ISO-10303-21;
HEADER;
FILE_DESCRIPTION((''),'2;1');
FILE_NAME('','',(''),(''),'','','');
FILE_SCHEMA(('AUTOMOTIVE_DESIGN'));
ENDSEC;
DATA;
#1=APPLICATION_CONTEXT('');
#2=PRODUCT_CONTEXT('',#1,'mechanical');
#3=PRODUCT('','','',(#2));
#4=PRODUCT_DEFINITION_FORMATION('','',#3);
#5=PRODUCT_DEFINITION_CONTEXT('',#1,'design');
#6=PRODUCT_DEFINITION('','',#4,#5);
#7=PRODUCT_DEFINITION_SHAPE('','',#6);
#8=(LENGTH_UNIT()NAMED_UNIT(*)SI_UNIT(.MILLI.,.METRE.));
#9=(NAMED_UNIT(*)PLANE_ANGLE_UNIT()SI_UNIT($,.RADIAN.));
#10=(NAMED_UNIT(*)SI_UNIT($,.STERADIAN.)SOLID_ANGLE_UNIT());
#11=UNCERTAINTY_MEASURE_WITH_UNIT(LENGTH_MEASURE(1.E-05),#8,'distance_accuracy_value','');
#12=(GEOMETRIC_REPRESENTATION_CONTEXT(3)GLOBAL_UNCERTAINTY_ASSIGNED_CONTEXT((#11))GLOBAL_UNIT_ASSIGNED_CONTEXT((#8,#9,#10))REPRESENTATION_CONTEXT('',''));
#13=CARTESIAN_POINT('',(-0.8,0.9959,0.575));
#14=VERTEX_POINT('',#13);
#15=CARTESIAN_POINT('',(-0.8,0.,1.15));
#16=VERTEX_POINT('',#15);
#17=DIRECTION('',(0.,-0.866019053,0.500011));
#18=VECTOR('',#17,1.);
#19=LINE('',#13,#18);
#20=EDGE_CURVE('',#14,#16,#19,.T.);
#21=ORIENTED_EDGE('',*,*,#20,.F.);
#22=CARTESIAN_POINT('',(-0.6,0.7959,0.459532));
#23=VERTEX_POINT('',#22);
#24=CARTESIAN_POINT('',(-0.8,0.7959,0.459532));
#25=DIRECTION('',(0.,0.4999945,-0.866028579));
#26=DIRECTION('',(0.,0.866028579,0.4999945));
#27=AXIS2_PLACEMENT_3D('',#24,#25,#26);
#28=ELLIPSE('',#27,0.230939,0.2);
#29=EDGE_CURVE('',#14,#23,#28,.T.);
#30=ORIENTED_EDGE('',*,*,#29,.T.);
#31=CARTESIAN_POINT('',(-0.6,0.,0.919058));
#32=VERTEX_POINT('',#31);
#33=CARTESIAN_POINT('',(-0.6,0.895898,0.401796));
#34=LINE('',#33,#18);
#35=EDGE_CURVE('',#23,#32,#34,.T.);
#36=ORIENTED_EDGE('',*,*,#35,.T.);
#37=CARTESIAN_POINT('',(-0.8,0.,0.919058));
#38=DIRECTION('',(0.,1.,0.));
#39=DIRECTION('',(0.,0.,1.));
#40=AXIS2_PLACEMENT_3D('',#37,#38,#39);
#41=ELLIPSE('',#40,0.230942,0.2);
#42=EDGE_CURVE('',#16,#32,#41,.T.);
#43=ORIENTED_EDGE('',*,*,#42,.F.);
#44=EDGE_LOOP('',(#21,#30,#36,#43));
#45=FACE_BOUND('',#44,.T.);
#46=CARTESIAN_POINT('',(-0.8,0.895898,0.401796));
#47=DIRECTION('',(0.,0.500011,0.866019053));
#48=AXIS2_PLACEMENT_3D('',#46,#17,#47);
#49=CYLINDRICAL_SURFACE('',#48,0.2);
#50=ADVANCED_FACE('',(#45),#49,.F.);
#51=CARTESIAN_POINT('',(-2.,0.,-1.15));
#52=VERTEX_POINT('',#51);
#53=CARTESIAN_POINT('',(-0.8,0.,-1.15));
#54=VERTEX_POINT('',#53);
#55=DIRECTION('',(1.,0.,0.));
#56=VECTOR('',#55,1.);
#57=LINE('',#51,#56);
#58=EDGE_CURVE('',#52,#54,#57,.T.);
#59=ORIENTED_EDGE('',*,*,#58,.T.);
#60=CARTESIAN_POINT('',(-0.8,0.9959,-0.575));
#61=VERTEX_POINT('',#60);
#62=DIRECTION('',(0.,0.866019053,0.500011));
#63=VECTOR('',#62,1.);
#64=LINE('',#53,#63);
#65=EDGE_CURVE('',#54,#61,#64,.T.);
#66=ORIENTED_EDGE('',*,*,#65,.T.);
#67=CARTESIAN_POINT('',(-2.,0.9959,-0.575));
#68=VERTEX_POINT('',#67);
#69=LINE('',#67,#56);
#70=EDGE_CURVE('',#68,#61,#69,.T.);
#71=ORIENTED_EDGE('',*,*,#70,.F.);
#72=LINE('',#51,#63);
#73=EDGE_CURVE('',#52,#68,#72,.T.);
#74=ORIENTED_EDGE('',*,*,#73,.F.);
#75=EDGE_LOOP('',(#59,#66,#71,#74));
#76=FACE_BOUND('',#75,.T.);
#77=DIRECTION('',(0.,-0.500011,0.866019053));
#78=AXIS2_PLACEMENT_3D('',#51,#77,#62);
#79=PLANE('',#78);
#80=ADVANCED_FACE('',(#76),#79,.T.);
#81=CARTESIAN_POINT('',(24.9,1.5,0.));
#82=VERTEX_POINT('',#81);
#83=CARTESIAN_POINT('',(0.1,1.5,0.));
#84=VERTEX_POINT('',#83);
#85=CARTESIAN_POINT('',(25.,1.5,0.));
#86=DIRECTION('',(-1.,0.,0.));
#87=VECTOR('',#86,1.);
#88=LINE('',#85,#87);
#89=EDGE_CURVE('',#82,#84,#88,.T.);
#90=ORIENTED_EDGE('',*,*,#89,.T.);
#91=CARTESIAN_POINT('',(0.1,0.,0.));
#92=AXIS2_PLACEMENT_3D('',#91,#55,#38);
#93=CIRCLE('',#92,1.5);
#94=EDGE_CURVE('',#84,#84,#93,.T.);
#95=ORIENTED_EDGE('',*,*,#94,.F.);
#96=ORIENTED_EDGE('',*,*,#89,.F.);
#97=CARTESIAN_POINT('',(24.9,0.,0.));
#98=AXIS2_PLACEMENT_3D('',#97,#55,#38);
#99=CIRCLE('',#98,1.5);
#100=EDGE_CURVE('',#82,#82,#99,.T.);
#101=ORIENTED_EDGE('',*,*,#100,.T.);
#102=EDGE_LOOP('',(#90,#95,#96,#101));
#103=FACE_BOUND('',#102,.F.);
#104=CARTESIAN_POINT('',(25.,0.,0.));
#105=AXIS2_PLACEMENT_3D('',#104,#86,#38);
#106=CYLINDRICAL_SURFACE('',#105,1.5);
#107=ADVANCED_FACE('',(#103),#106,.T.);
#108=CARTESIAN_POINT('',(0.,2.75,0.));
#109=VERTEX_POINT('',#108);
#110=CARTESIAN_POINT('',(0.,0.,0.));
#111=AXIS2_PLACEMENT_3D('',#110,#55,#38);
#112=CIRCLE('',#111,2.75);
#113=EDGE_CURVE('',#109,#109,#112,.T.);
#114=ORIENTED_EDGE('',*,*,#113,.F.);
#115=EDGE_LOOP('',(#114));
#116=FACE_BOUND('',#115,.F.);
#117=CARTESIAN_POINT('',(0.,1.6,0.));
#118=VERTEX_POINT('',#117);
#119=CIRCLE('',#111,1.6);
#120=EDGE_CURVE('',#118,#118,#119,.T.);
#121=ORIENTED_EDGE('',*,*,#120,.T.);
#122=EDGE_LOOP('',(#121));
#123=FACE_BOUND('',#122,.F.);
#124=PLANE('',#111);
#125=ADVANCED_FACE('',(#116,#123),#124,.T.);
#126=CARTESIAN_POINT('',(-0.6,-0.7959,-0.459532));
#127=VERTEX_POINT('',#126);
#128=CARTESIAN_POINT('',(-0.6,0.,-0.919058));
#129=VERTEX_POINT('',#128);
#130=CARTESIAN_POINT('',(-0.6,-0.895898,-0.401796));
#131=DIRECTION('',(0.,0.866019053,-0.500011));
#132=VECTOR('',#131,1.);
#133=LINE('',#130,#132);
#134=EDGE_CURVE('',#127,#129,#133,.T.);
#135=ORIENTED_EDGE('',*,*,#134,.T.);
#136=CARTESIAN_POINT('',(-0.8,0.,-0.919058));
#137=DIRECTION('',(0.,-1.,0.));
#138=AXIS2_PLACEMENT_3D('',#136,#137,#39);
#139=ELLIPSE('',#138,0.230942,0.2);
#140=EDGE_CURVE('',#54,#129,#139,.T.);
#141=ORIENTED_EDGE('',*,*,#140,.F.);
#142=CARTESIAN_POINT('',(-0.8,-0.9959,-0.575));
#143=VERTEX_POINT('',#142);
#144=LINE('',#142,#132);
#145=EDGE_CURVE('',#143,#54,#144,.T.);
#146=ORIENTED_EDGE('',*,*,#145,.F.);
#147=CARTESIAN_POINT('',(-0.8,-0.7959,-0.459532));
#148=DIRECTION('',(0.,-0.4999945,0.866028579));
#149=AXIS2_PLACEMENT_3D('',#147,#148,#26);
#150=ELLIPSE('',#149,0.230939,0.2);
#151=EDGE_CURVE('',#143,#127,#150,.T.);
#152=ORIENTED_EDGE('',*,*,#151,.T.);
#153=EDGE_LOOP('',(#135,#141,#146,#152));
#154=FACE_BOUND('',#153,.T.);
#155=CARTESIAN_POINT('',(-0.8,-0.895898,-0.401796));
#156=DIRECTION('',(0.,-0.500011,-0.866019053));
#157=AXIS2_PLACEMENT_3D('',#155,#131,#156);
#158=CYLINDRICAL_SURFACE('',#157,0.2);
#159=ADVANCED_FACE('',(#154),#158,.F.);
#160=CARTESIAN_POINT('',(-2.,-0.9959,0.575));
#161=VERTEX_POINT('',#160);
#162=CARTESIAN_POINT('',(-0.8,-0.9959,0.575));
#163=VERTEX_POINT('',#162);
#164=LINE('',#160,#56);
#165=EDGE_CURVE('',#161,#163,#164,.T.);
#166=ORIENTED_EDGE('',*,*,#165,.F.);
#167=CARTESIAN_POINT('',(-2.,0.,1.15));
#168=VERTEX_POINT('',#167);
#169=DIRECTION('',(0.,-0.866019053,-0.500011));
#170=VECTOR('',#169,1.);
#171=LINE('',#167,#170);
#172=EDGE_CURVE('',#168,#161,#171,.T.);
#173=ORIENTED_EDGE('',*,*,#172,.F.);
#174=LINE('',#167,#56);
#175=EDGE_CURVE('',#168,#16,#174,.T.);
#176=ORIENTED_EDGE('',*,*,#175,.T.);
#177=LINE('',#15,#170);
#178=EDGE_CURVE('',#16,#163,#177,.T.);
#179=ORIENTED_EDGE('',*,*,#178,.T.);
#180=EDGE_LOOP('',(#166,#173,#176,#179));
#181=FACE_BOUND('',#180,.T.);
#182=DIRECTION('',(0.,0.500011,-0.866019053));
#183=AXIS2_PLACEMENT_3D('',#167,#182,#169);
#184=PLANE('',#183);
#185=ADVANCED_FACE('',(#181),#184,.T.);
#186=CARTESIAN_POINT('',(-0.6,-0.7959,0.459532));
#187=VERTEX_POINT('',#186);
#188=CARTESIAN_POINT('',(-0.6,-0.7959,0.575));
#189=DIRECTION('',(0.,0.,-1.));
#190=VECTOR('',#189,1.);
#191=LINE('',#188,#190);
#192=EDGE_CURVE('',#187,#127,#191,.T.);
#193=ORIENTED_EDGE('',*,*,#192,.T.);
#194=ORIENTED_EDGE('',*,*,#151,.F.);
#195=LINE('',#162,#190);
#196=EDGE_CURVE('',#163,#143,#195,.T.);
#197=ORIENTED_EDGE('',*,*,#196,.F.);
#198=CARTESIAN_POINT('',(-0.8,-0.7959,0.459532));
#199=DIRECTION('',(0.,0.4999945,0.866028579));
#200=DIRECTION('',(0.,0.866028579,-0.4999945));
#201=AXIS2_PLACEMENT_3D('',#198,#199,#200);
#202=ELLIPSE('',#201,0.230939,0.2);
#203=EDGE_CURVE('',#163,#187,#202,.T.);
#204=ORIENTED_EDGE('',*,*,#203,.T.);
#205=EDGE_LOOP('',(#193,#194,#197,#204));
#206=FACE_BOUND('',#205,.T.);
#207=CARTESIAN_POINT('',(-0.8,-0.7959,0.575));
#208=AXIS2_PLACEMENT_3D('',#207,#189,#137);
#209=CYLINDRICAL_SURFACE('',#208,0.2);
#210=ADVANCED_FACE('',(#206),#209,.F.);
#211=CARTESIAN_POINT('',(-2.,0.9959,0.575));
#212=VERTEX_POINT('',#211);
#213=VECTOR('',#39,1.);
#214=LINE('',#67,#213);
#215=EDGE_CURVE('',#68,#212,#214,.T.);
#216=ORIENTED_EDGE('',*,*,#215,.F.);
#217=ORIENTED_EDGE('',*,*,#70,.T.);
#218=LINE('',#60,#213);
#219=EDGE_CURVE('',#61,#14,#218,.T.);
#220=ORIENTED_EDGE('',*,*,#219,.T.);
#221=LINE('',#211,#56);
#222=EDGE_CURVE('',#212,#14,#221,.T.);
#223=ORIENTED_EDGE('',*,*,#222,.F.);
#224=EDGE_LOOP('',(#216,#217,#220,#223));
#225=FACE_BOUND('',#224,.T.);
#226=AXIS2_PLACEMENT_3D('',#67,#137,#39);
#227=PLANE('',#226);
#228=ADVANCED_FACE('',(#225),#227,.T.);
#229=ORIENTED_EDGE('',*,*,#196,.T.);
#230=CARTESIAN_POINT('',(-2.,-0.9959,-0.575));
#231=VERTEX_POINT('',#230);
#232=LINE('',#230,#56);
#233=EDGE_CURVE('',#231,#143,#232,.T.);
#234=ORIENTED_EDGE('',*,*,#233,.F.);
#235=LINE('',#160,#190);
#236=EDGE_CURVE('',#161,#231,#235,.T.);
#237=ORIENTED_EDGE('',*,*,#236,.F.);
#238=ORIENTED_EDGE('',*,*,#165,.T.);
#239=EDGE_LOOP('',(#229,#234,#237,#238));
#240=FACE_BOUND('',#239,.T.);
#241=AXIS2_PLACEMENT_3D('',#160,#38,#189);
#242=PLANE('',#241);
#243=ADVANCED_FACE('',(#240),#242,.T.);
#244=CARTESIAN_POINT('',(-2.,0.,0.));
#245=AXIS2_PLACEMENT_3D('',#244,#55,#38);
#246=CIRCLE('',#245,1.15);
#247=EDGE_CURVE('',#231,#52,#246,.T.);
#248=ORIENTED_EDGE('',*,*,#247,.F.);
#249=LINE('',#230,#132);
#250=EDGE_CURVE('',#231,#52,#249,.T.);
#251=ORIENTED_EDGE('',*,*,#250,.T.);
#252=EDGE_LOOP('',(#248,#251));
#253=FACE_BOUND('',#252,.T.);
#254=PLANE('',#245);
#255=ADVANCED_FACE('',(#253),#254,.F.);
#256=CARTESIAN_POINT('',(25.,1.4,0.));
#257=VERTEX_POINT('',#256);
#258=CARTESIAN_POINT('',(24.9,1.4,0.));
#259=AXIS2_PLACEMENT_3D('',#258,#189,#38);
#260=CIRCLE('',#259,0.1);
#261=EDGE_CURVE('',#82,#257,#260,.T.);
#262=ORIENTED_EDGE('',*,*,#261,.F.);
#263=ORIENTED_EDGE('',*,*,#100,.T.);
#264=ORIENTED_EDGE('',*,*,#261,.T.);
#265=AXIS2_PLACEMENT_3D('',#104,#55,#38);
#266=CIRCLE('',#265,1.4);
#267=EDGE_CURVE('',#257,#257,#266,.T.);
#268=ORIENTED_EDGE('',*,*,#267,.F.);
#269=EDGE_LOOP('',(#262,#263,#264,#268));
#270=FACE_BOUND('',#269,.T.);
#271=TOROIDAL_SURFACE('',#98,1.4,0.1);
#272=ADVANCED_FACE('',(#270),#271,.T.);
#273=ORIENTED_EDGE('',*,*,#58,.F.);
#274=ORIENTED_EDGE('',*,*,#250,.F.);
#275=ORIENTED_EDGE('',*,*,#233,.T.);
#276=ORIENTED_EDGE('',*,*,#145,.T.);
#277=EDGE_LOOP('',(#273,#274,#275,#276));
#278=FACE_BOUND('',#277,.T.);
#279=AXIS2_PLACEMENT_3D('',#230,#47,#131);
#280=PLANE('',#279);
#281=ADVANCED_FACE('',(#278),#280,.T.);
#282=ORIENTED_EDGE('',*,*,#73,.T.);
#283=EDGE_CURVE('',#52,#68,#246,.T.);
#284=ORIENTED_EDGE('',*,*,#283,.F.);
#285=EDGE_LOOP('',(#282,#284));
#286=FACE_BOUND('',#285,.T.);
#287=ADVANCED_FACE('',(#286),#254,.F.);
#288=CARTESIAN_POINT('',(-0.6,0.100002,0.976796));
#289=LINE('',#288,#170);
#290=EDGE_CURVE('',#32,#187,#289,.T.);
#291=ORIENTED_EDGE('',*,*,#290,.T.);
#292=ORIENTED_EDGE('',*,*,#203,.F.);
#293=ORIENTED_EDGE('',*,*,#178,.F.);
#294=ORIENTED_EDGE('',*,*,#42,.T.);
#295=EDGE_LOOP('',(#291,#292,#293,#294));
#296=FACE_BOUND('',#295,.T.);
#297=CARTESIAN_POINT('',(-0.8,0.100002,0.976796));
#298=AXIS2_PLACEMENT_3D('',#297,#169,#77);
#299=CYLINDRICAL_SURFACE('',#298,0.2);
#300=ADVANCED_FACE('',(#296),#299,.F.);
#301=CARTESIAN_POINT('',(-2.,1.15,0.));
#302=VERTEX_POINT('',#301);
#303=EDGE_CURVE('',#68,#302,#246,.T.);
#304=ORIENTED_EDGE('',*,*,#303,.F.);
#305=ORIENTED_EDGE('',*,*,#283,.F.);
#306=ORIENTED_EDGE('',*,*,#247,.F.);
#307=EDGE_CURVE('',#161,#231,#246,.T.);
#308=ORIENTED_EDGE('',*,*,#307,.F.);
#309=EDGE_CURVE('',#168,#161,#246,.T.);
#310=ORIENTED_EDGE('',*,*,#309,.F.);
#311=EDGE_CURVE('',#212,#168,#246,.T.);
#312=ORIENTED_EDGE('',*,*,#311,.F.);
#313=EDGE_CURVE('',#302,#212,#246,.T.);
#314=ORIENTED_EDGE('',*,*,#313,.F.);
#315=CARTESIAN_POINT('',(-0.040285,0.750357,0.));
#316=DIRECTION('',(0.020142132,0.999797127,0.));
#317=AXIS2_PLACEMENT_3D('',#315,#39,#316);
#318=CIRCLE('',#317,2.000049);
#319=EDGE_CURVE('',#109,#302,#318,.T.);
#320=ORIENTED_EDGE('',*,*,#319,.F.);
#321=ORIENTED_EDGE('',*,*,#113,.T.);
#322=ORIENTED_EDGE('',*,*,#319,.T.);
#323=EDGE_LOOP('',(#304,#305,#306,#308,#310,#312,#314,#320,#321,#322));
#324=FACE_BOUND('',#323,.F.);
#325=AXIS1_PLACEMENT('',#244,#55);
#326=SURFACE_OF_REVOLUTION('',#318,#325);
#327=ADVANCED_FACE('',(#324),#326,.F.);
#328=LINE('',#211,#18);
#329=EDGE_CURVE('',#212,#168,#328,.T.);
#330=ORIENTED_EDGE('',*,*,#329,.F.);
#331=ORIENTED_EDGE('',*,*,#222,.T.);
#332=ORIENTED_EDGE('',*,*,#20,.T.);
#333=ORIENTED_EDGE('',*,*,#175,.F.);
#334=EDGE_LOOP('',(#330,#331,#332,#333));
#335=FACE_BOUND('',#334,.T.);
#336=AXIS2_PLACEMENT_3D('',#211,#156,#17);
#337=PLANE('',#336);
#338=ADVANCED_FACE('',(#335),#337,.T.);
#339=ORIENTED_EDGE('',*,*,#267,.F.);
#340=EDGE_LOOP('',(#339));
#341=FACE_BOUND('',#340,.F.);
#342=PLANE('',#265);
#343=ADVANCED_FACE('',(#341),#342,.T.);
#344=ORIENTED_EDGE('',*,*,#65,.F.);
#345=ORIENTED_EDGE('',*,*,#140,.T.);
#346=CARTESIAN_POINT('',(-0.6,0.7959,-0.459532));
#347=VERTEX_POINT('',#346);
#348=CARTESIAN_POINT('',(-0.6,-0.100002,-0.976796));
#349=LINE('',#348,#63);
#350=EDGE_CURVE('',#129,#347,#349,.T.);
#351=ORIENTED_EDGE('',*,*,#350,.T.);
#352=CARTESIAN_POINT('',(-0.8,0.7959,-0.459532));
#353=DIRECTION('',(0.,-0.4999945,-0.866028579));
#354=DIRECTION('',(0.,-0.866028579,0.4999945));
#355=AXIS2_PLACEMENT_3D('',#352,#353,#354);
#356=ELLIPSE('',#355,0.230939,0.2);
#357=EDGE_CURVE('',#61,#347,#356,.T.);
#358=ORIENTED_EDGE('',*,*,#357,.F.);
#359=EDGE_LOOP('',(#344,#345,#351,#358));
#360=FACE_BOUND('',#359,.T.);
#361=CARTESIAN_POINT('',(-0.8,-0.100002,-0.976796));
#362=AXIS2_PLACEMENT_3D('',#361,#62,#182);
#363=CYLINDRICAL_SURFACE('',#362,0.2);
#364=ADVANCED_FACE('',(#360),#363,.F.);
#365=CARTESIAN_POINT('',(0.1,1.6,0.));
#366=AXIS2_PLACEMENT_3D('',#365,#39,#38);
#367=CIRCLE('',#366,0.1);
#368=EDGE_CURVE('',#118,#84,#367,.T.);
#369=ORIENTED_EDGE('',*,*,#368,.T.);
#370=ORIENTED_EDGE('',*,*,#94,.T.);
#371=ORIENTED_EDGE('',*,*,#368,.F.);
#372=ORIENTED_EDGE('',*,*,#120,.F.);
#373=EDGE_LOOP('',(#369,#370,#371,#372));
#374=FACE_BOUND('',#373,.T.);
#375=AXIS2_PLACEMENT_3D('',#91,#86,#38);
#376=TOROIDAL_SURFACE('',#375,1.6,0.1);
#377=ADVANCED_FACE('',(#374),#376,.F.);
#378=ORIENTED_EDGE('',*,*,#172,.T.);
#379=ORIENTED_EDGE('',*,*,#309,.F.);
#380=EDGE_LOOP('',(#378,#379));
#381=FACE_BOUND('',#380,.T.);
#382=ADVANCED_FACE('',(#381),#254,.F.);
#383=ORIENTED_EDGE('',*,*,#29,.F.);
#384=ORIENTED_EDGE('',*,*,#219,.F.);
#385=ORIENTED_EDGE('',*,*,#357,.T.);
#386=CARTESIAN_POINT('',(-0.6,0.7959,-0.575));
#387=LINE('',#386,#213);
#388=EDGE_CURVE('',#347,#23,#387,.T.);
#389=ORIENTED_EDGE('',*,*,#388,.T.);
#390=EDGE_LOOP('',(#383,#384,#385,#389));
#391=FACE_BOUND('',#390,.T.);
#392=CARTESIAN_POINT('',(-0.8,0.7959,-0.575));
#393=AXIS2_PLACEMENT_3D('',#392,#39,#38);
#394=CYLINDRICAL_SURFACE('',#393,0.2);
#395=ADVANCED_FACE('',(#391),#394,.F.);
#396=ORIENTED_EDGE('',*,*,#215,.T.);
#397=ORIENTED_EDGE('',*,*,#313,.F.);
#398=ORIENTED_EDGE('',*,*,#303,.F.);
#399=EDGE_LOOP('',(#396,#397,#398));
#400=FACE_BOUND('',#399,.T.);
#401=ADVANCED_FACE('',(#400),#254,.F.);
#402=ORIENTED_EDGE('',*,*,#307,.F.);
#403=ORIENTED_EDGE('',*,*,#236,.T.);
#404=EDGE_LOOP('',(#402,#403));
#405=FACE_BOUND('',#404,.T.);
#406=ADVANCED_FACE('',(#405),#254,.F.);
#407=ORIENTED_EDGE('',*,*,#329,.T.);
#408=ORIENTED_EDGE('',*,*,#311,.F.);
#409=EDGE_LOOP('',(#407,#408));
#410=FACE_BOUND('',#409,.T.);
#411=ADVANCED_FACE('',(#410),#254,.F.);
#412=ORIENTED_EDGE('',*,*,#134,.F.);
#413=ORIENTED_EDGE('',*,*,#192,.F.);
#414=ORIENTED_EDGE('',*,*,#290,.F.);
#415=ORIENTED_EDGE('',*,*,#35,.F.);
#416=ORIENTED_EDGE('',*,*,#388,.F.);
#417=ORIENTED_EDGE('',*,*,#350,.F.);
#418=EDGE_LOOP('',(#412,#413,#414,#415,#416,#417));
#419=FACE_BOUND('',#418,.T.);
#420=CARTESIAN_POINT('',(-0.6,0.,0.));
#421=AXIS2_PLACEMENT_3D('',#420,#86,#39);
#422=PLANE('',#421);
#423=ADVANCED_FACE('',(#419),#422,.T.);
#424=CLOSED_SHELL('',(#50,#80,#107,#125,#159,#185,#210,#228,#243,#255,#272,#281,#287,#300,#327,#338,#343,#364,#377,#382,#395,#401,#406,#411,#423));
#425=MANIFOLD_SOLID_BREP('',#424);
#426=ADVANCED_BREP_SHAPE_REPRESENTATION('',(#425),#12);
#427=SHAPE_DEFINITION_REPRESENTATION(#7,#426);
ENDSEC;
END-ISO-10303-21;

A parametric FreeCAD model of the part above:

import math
import FreeCAD as App
import Part
import Sketcher


def edges_at(feature, points):
    """Names of the edges that pass closest to the given points."""
    edges = feature.Shape.Edges
    near = lambda p: min(range(len(edges)), key=lambda i: edges[i].distToShape(Part.Vertex(*p))[0])
    return sorted({f"Edge{near(p) + 1}" for p in points})

doc = App.newDocument("Part")
body = doc.addObject("PartDesign::Body", "Body")

# Sketch on XY plane
sketch1 = body.newObject("Sketcher::SketchObject", "Sketch")
sketch1.AttachmentSupport = (doc.getObject("XY_Plane"), [""])
sketch1.MapMode = "FlatFace"
sketch1.addGeometry(Part.LineSegment(App.Vector(25, 1.5, 0), App.Vector(0, 1.5, 0)), False)
sketch1.addGeometry(Part.LineSegment(App.Vector(0, 1.5, 0), App.Vector(0, 2.8, 0)), False)
sketch1.addGeometry(Part.ArcOfCircle(Part.Circle(App.Vector(0, 0.8, 0), App.Vector(0, 0, 1), 2), math.radians(89), math.radians(168)), False)
sketch1.addGeometry(Part.LineSegment(App.Vector(-2, 1.1, 0), App.Vector(-2, 0, 0)), False)
sketch1.addGeometry(Part.LineSegment(App.Vector(-2, 0, 0), App.Vector(25, 0, 0)), False)
sketch1.addGeometry(Part.LineSegment(App.Vector(25, 0, 0), App.Vector(25, 1.5, 0)), False)
sketch1.addConstraint(Sketcher.Constraint("Coincident", 0, 2, 1, 1))
sketch1.addConstraint(Sketcher.Constraint("Coincident", 1, 2, 2, 1))
sketch1.addConstraint(Sketcher.Constraint("Coincident", 2, 2, 3, 1))
sketch1.addConstraint(Sketcher.Constraint("Coincident", 3, 2, 4, 1))
sketch1.addConstraint(Sketcher.Constraint("Coincident", 4, 2, 5, 1))
sketch1.addConstraint(Sketcher.Constraint("Coincident", 5, 2, 0, 1))
sketch1.addConstraint(Sketcher.Constraint("Horizontal", 0))
sketch1.addConstraint(Sketcher.Constraint("Vertical", 1))
sketch1.addConstraint(Sketcher.Constraint("Vertical", 3))
sketch1.addConstraint(Sketcher.Constraint("Horizontal", 4))
sketch1.addConstraint(Sketcher.Constraint("Vertical", 5))
sketch1.addConstraint(Sketcher.Constraint("PointOnObject", 0, 2, -2))
sketch1.addConstraint(Sketcher.Constraint("PointOnObject", 3, 2, -1))
sketch1.addConstraint(Sketcher.Constraint("Radius", 2, 2.0))
sketch1.addConstraint(Sketcher.Constraint("DistanceX", 0, 2, 0, 1, 25.0))
sketch1.addConstraint(Sketcher.Constraint("DistanceY", 5, 1, 5, 2, 1.5))
sketch1.addConstraint(Sketcher.Constraint("DistanceX", 2, 2, -1, 1, 2.0))
sketch1.addConstraint(Sketcher.Constraint("DistanceY", 3, 2, 3, 1, 1.15))
sketch1.addConstraint(Sketcher.Constraint("DistanceY", -1, 1, 1, 2, 2.75))
revolution = body.newObject("PartDesign::Revolution", "Revolution")
revolution.Profile = sketch1
revolution.ReferenceAxis = (sketch1, ["H_Axis"])
revolution.Angle = 360

# Sketch on YZ plane
sketch2 = body.newObject("Sketcher::SketchObject", "Sketch001")
sketch2.AttachmentSupport = (doc.getObject("YZ_Plane"), [""])
sketch2.MapMode = "FlatFace"
sketch2.AttachmentOffset = App.Placement(App.Vector(0, 0, -2), App.Rotation())
sketch2.addGeometry(Part.LineSegment(App.Vector(-1, 0.6, 0), App.Vector(0, 1.1, 0)), False)
sketch2.addGeometry(Part.LineSegment(App.Vector(0, 1.1, 0), App.Vector(1, 0.6, 0)), False)
sketch2.addGeometry(Part.LineSegment(App.Vector(1, 0.6, 0), App.Vector(1, -0.6, 0)), False)
sketch2.addGeometry(Part.LineSegment(App.Vector(1, -0.6, 0), App.Vector(0, -1.1, 0)), False)
sketch2.addGeometry(Part.LineSegment(App.Vector(0, -1.1, 0), App.Vector(-1, -0.6, 0)), False)
sketch2.addGeometry(Part.LineSegment(App.Vector(-1, -0.6, 0), App.Vector(-1, 0.6, 0)), False)
sketch2.addConstraint(Sketcher.Constraint("Coincident", 0, 2, 1, 1))
sketch2.addConstraint(Sketcher.Constraint("Coincident", 1, 2, 2, 1))
sketch2.addConstraint(Sketcher.Constraint("Coincident", 2, 2, 3, 1))
sketch2.addConstraint(Sketcher.Constraint("Coincident", 3, 2, 4, 1))
sketch2.addConstraint(Sketcher.Constraint("Coincident", 4, 2, 5, 1))
sketch2.addConstraint(Sketcher.Constraint("Coincident", 5, 2, 0, 1))
sketch2.addConstraint(Sketcher.Constraint("Vertical", 2))
sketch2.addConstraint(Sketcher.Constraint("Vertical", 5))
sketch2.addConstraint(Sketcher.Constraint("Symmetric", 0, 2, 3, 2, -1, 1))
sketch2.addConstraint(Sketcher.Constraint("Symmetric", 1, 2, 4, 2, -1, 1))
sketch2.addConstraint(Sketcher.Constraint("PointOnObject", 0, 2, -2))
sketch2.addConstraint(Sketcher.Constraint("Parallel", 0, 3))
sketch2.addConstraint(Sketcher.Constraint("Horizontal", 2, 2, 4, 2))
sketch2.addConstraint(Sketcher.Constraint("DistanceY", 2, 2, 2, 1, 1.15))
sketch2.addConstraint(Sketcher.Constraint("Distance", 0, 1.15))
sketch2.addConstraint(Sketcher.Constraint("DistanceY", -1, 1, 0, 2, 1.15))
pocket1 = body.newObject("PartDesign::Pocket", "Pocket")
pocket1.Profile = sketch2
pocket1.Length = 1.4
pocket1.Reversed = True
doc.recompute()

fillet = body.newObject("PartDesign::Fillet", "Fillet")
fillet.Base = (pocket1, edges_at(pocket1, [
    (-0.6, 0.996, 0),
    (-0.6, 0.498, 0.863),
    (-0.6, 0.498, -0.863),
    (-0.6, -0.498, -0.863),
    (-0.6, -0.996, 0),
    (-0.6, -0.498, 0.863),
]))
fillet.Radius = 0.2
doc.recompute()

fillet2 = body.newObject("PartDesign::Fillet", "Fillet001")
fillet2.Base = (fillet, edges_at(fillet, [(0, -1.5, 0)]))
fillet2.Radius = 0.1
doc.recompute()

fillet3 = body.newObject("PartDesign::Fillet", "Fillet002")
fillet3.Base = (fillet2, edges_at(fillet2, [(25, -1.5, 0)]))
fillet3.Radius = 0.1

doc.recompute()
